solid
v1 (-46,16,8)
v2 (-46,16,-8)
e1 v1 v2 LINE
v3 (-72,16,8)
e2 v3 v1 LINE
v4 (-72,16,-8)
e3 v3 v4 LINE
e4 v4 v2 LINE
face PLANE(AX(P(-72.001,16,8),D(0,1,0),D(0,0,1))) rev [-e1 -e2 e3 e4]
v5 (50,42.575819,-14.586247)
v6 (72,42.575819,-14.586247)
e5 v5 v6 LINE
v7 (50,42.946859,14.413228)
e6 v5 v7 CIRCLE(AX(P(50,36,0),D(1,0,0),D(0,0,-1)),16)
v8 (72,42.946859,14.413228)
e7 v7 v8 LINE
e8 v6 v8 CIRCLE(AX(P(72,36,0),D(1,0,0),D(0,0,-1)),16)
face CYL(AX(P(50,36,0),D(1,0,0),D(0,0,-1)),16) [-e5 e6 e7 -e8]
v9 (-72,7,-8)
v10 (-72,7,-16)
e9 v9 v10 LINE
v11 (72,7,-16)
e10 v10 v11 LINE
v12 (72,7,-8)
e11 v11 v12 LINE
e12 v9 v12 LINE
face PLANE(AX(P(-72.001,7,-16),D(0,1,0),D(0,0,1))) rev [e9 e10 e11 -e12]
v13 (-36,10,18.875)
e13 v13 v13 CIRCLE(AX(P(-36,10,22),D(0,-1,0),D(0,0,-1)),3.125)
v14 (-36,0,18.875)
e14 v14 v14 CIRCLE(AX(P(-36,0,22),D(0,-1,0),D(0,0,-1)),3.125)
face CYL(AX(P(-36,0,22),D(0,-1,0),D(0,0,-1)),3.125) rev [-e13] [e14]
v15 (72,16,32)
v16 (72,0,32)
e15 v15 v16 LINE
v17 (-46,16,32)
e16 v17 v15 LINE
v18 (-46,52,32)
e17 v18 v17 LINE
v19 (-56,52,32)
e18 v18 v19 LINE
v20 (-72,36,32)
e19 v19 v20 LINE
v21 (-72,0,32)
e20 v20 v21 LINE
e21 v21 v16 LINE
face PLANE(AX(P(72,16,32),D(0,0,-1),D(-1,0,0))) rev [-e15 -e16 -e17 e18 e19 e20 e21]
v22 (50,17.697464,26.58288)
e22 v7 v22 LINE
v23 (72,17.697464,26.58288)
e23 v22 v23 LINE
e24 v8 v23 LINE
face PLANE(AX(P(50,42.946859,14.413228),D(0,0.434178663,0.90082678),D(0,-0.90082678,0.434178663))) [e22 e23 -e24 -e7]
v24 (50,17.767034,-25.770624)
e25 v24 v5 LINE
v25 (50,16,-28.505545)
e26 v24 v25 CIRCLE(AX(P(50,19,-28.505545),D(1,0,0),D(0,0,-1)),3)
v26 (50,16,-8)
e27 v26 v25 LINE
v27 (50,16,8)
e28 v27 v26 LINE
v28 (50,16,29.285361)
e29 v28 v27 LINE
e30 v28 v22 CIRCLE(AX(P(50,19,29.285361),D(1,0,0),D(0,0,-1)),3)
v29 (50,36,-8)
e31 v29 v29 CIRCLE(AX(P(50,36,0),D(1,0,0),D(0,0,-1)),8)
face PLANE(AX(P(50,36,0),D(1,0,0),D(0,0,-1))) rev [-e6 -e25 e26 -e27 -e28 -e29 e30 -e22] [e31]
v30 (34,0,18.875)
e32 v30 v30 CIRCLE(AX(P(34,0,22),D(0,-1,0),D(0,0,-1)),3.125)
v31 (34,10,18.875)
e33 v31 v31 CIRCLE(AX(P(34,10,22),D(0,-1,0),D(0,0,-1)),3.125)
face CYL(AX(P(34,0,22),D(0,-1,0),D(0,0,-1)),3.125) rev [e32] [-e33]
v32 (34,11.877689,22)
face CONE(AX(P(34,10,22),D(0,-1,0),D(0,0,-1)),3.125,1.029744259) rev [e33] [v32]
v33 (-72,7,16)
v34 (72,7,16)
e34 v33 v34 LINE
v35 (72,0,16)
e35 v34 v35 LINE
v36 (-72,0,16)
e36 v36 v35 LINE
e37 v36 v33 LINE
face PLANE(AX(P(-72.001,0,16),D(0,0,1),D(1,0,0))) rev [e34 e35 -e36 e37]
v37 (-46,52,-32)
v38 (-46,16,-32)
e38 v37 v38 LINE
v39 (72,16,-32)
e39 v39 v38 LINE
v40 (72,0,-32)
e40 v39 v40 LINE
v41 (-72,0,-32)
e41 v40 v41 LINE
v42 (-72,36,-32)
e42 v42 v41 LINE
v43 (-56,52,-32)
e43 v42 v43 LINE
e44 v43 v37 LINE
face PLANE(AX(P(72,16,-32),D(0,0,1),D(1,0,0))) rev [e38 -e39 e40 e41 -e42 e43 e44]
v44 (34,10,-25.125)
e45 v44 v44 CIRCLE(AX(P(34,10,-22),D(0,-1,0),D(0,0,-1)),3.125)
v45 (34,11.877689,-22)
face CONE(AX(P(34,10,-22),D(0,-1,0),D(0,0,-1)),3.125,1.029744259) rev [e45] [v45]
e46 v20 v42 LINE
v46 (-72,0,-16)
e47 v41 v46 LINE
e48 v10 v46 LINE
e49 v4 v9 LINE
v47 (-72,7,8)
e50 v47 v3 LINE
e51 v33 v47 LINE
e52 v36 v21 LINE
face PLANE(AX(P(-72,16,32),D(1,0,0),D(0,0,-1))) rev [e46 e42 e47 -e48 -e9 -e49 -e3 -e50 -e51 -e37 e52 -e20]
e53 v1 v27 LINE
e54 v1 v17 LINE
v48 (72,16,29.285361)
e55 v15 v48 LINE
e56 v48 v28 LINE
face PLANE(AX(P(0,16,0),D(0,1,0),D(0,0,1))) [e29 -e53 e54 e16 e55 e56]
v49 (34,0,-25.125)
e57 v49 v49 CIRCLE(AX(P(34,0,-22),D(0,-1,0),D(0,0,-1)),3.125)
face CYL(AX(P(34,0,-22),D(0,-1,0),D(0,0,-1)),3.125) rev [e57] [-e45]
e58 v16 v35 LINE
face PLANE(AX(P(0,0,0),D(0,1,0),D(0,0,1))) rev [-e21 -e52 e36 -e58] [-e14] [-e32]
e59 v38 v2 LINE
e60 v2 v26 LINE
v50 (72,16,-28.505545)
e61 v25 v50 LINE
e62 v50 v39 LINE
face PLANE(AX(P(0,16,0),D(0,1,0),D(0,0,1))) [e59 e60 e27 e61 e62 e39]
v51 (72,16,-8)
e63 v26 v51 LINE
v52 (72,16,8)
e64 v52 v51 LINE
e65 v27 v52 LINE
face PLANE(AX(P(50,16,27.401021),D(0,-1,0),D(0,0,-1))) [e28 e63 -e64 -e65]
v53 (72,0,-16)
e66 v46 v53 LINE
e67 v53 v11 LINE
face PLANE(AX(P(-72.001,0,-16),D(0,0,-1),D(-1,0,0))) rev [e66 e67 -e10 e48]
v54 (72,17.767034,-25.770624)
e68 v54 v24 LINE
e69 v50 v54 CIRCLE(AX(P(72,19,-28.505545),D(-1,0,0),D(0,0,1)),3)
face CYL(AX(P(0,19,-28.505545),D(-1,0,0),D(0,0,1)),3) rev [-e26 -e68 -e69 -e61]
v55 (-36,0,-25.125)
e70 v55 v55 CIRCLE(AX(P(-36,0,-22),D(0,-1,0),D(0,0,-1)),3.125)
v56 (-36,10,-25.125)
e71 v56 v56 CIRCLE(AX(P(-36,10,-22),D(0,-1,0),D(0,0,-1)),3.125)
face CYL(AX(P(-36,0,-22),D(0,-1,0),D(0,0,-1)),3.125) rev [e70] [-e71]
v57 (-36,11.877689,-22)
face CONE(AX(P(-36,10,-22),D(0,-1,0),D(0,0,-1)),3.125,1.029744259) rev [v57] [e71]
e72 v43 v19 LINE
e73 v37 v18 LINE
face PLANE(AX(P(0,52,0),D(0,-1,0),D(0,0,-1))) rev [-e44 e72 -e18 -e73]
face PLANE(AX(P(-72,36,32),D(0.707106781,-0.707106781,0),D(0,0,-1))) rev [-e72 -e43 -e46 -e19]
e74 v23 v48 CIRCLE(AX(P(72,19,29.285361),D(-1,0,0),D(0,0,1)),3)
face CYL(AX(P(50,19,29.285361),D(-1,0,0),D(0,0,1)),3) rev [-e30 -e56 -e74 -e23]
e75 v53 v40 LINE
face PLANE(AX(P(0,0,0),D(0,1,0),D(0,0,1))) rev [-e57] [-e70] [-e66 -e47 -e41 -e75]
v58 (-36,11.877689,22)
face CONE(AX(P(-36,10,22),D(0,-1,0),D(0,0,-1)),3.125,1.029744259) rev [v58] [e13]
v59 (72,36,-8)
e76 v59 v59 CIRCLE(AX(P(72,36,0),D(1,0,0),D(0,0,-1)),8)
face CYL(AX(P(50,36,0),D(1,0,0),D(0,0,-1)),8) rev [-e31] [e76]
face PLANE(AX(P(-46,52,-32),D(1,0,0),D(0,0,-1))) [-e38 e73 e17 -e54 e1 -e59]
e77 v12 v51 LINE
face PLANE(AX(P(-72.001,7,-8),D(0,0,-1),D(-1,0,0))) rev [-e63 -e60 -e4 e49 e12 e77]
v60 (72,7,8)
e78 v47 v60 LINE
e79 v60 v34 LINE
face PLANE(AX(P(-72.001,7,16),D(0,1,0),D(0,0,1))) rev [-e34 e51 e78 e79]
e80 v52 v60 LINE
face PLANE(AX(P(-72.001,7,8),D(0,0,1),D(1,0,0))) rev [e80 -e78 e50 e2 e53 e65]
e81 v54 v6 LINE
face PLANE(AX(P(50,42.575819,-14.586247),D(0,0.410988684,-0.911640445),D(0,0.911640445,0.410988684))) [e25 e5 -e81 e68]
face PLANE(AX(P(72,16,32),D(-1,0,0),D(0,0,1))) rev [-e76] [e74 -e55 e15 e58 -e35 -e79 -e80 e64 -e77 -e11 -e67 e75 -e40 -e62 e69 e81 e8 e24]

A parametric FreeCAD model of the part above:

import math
import FreeCAD as App
import Part
import Sketcher

V = App.Vector
Q = App.Units.Quantity


def edges_at(feature, points):
    """Names of the edges that pass closest to the given points."""
    edges = feature.Shape.Edges
    near = lambda p: min(range(len(edges)), key=lambda i: edges[i].distToShape(Part.Vertex(*p))[0])
    return sorted({f"Edge{near(p) + 1}" for p in points})

doc = App.newDocument("Part")
body = doc.addObject("PartDesign::Body", "Body")

# Sketch on XZ plane
sketch1 = doc.addObject("Sketcher::SketchObject", "Sketch")
body.addObject(sketch1)
sketch1.AttachmentSupport = (doc.XZ_Plane, [""])
sketch1.MapMode = "FlatFace"
sketch1.addGeometry([
    Part.LineSegment(V(-72, -32, 0), V(-72, 32, 0)),
    Part.LineSegment(V(-72, 32, 0), V(72, 32, 0)),
    Part.LineSegment(V(72, 32, 0), V(72, -32, 0)),
    Part.LineSegment(V(72, -32, 0), V(-72, -32, 0)),
], False)
sketch1.addConstraint([
    Sketcher.Constraint("Coincident", 0, 2, 1, 1),
    Sketcher.Constraint("Coincident", 1, 2, 2, 1),
    Sketcher.Constraint("Coincident", 2, 2, 3, 1),
    Sketcher.Constraint("Coincident", 3, 2, 0, 1),
    Sketcher.Constraint("Vertical", 0),
    Sketcher.Constraint("Horizontal", 1),
    Sketcher.Constraint("Vertical", 2),
    Sketcher.Constraint("Horizontal", 3),
    Sketcher.Constraint("Symmetric", 0, 2, 2, 2, -1, 1),
    Sketcher.Constraint("DistanceX", 1, 1, 1, 2, Q("144 mm")),
    Sketcher.Constraint("DistanceY", 0, 1, 0, 2, Q("64 mm")),
])
pad1 = doc.addObject("PartDesign::Pad", "Pad")
body.addObject(pad1)
pad1.Profile = sketch1
pad1.Length = 16
pad1.Reversed = True

# Sketch on XZ plane
sketch2 = doc.addObject("Sketcher::SketchObject", "Sketch001")
body.addObject(sketch2)
sketch2.AttachmentSupport = (doc.XZ_Plane, [""])
sketch2.MapMode = "FlatFace"
sketch2.AttachmentOffset = App.Placement(V(0, 0, -16), App.Rotation())
sketch2.addGeometry([
    Part.LineSegment(V(-72, -32, 0), V(-72, 32, 0)),
    Part.LineSegment(V(-72, 32, 0), V(-46, 32, 0)),
    Part.LineSegment(V(-46, 32, 0), V(-46, -32, 0)),
    Part.LineSegment(V(-46, -32, 0), V(-72, -32, 0)),
], False)
sketch2.addConstraint([
    Sketcher.Constraint("Coincident", 0, 2, 1, 1),
    Sketcher.Constraint("Coincident", 1, 2, 2, 1),
    Sketcher.Constraint("Coincident", 2, 2, 3, 1),
    Sketcher.Constraint("Coincident", 3, 2, 0, 1),
    Sketcher.Constraint("Vertical", 0),
    Sketcher.Constraint("Horizontal", 1),
    Sketcher.Constraint("Vertical", 2),
    Sketcher.Constraint("Horizontal", 3),
    Sketcher.Constraint("DistanceX", 1, 1, 1, 2, Q("26 mm")),
    Sketcher.Constraint("DistanceY", 0, 1, 0, 2, Q("64 mm")),
    Sketcher.Constraint("DistanceX", 0, 2, -1, 1, Q("72 mm")),
    Sketcher.Constraint("DistanceY", -1, 1, 0, 2, Q("32 mm")),
])
pad2 = doc.addObject("PartDesign::Pad", "Pad001")
body.addObject(pad2)
pad2.Profile = sketch2
pad2.Length = 36
pad2.Reversed = True
doc.recompute()

chamfer = doc.addObject("PartDesign::Chamfer", "Chamfer")
body.addObject(chamfer)
chamfer.Base = (pad2, edges_at(pad2, [(-72, 52, 0)]))
chamfer.Size = 16

# Sketch on YZ plane
sketch3 = doc.addObject("Sketcher::SketchObject", "Sketch002")
body.addObject(sketch3)
sketch3.AttachmentSupport = (doc.YZ_Plane, [""])
sketch3.MapMode = "FlatFace"
sketch3.AttachmentOffset = App.Placement(V(0, 0, 72), App.Rotation())
sketch3.addGeometry([
    Part.LineSegment(V(7, 16, 0), V(0, 16, 0)),  # 0
    Part.LineSegment(V(0, 16, 0), V(0, -16, 0)),  # 1
    Part.LineSegment(V(0, -16, 0), V(7, -16, 0)),  # 2
    Part.LineSegment(V(7, -16, 0), V(7, -8, 0)),  # 3
    Part.LineSegment(V(7, -8, 0), V(16, -8, 0)),  # 4
    Part.LineSegment(V(16, -8, 0), V(16, 8, 0)),  # 5
    Part.LineSegment(V(16, 8, 0), V(7, 8, 0)),  # 6
    Part.LineSegment(V(7, 8, 0), V(7, 16, 0)),  # 7
], False)
sketch3.addConstraint([
    Sketcher.Constraint("Coincident", 0, 2, 1, 1),
    Sketcher.Constraint("Coincident", 1, 2, 2, 1),
    Sketcher.Constraint("Coincident", 2, 2, 3, 1),
    Sketcher.Constraint("Coincident", 3, 2, 4, 1),
    Sketcher.Constraint("Coincident", 4, 2, 5, 1),
    Sketcher.Constraint("Coincident", 5, 2, 6, 1),
    Sketcher.Constraint("Coincident", 6, 2, 7, 1),
    Sketcher.Constraint("Coincident", 7, 2, 0, 1),
    Sketcher.Constraint("Horizontal", 0),
    Sketcher.Constraint("Vertical", 1),
    Sketcher.Constraint("Horizontal", 2),
    Sketcher.Constraint("Vertical", 3),
    Sketcher.Constraint("Horizontal", 4),
    Sketcher.Constraint("Vertical", 5),
    Sketcher.Constraint("Horizontal", 6),
    Sketcher.Constraint("Vertical", 7),
    Sketcher.Constraint("Symmetric", 0, 2, 1, 2, -1, 1),
    Sketcher.Constraint("Symmetric", 3, 2, 6, 2, -1),
    Sketcher.Constraint("DistanceX", 0, 2, 0, 1, Q("7 mm")),
    Sketcher.Constraint("DistanceX", 4, 1, 4, 2, Q("9 mm")),
    Sketcher.Constraint("DistanceY", 1, 2, 1, 1, Q("32 mm")),
    Sketcher.Constraint("DistanceY", 3, 1, 3, 2, Q("8 mm")),
])
pocket1 = doc.addObject("PartDesign::Pocket", "Pocket")
body.addObject(pocket1)
pocket1.Profile = sketch3
pocket1.Type = "UpToFirst"

# Sketch on YZ plane
sketch4 = doc.addObject("Sketcher::SketchObject", "Sketch003")
body.addObject(sketch4)
sketch4.AttachmentSupport = (doc.YZ_Plane, [""])
sketch4.MapMode = "FlatFace"
sketch4.AttachmentOffset = App.Placement(V(0, 0, 72), App.Rotation())
sketch4.addGeometry([
    Part.LineSegment(V(42.946859, 14.413228, 0), V(16, 27.401021, 0)),  # 0
    Part.LineSegment(V(16, 27.401021, 0), V(16, -26.567243, 0)),  # 1
    Part.LineSegment(V(16, -26.567243, 0), V(42.575819, -14.586247, 0)),  # 2
    Part.ArcOfCircle(Part.Circle(V(36, 0, 0), V(0, 0, 1), 16), math.radians(-65.733042), math.radians(64.266958)),  # 3
    Part.Circle(V(36, 0, 0), V(0, 0, 1), 8),  # 4
], False)
sketch4.addConstraint([
    Sketcher.Constraint("Coincident", 0, 2, 1, 1),
    Sketcher.Constraint("Coincident", 1, 2, 2, 1),
    Sketcher.Constraint("Tangent", 2, 2, 3, 1),
    Sketcher.Constraint("Tangent", 3, 2, 0, 1),
    Sketcher.Constraint("Vertical", 1),
    Sketcher.Constraint("Coincident", 4, 3, 3, 3),
    Sketcher.Constraint("PointOnObject", 3, 3, -1),
    Sketcher.Constraint("Diameter", 4, Q("16 mm")),
    Sketcher.Constraint("Radius", 3, Q("16 mm")),
    Sketcher.Constraint("DistanceX", -1, 1, 3, 3, Q("36 mm")),
    Sketcher.Constraint("DistanceX", -1, 1, 0, 2, Q("16 mm")),
    Sketcher.Constraint("DistanceY", 1, 2, 1, 1, Q("53.968264 mm")),
    Sketcher.Constraint("DistanceY", -1, 1, 0, 2, Q("27.401021 mm")),
])
pad3 = doc.addObject("PartDesign::Pad", "Pad002")
body.addObject(pad3)
pad3.Profile = sketch4
pad3.Length = 22
pad3.Reversed = True
doc.recompute()

fillet = doc.addObject("PartDesign::Fillet", "Fillet")
body.addObject(fillet)
fillet.Base = (pad3, edges_at(pad3, [(61, 16, -26.567), (61, 16, 27.401)]))
fillet.Radius = 3

# Sketch on XZ plane
sketch5 = doc.addObject("Sketcher::SketchObject", "Sketch004")
body.addObject(sketch5)
sketch5.AttachmentSupport = (doc.XZ_Plane, [""])
sketch5.MapMode = "FlatFace"
sketch5.addGeometry([
    Part.Circle(V(-36, 22, 0), V(0, 0, 1), 3.125),
    Part.Circle(V(34, 22, 0), V(0, 0, 1), 3.125),
    Part.Circle(V(-36, -22, 0), V(0, 0, 1), 3.125),
    Part.Circle(V(34, -22, 0), V(0, 0, 1), 3.125),
], False)
sketch5.addConstraint([
    Sketcher.Constraint("Equal", 0, 1),
    Sketcher.Constraint("Equal", 1, 2),
    Sketcher.Constraint("Equal", 2, 3),
    Sketcher.Constraint("Symmetric", 0, 3, 2, 3, -1),
    Sketcher.Constraint("Symmetric", 1, 3, 3, 3, -1),
    Sketcher.Constraint("Horizontal", 0, 3, 1, 3),
    Sketcher.Constraint("Diameter", 0, Q("6.25 mm")),
    Sketcher.Constraint("DistanceX", 0, 3, -1, 1, Q("36 mm")),
    Sketcher.Constraint("DistanceY", -1, 1, 0, 3, Q("22 mm")),
    Sketcher.Constraint("DistanceX", -1, 1, 1, 3, Q("34 mm")),
])
doc.recompute()
hole = doc.addObject("PartDesign::Hole", "Hole")
body.addObject(hole)
hole.Profile = sketch5
hole.ThreadType = "None"
hole.Diameter = 6.25
hole.DepthType = "Dimension"
hole.Depth = 10
hole.DrillPoint = "Angled"
hole.DrillPointAngle = 118

doc.recompute()
